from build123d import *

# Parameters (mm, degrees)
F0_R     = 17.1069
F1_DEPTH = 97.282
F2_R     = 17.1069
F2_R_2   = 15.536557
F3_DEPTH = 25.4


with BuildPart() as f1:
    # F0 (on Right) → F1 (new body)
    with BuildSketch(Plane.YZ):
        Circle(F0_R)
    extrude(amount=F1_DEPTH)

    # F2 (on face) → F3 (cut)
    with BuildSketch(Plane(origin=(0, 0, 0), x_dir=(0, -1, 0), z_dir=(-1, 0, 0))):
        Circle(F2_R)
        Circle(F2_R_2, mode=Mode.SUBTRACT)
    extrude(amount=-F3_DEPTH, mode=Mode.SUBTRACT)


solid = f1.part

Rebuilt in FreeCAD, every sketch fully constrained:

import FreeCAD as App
import Part
import Sketcher
Q = App.Units.Quantity

doc = App.newDocument("Part")
body = doc.addObject("PartDesign::Body", "Body")

# Sketch on YZ plane
sketch1 = body.newObject("Sketcher::SketchObject", "Sketch")
sketch1.AttachmentSupport = (doc.getObject("YZ_Plane"), [""])
sketch1.MapMode = "FlatFace"
sketch1.addGeometry(Part.Circle(App.Vector(0, 0, 0), App.Vector(0, 0, 1), 17.1069), False)
sketch1.addConstraint([
    Sketcher.Constraint("Coincident", 0, 3, -1, 1),
    Sketcher.Constraint("Diameter", 0, Q("1.347 in")),
])
pad1 = body.newObject("PartDesign::Pad", "Pad")
pad1.Profile = sketch1
pad1.Length = Q("3.83 in")

# Sketch on YZ plane
sketch2 = body.newObject("Sketcher::SketchObject", "Sketch001")
sketch2.AttachmentSupport = (doc.getObject("YZ_Plane"), [""])
sketch2.MapMode = "FlatFace"
sketch2.addGeometry([
    Part.Circle(App.Vector(0, 0, 0), App.Vector(0, 0, 1), 17.1069),
    Part.Circle(App.Vector(0, 0, 0), App.Vector(0, 0, 1), 15.536557),
], False)
sketch2.addConstraint([
    Sketcher.Constraint("Coincident", 0, 3, -1, 1),
    Sketcher.Constraint("Coincident", 1, 3, -1, 1),
    Sketcher.Constraint("Diameter", 0, Q("1.347 in")),
    Sketcher.Constraint("Diameter", 1, Q("31.073114 mm")),
])
pocket1 = body.newObject("PartDesign::Pocket", "Pocket")
pocket1.Profile = sketch2
pocket1.Length = Q("1 in")
pocket1.Reversed = True

doc.recompute()
